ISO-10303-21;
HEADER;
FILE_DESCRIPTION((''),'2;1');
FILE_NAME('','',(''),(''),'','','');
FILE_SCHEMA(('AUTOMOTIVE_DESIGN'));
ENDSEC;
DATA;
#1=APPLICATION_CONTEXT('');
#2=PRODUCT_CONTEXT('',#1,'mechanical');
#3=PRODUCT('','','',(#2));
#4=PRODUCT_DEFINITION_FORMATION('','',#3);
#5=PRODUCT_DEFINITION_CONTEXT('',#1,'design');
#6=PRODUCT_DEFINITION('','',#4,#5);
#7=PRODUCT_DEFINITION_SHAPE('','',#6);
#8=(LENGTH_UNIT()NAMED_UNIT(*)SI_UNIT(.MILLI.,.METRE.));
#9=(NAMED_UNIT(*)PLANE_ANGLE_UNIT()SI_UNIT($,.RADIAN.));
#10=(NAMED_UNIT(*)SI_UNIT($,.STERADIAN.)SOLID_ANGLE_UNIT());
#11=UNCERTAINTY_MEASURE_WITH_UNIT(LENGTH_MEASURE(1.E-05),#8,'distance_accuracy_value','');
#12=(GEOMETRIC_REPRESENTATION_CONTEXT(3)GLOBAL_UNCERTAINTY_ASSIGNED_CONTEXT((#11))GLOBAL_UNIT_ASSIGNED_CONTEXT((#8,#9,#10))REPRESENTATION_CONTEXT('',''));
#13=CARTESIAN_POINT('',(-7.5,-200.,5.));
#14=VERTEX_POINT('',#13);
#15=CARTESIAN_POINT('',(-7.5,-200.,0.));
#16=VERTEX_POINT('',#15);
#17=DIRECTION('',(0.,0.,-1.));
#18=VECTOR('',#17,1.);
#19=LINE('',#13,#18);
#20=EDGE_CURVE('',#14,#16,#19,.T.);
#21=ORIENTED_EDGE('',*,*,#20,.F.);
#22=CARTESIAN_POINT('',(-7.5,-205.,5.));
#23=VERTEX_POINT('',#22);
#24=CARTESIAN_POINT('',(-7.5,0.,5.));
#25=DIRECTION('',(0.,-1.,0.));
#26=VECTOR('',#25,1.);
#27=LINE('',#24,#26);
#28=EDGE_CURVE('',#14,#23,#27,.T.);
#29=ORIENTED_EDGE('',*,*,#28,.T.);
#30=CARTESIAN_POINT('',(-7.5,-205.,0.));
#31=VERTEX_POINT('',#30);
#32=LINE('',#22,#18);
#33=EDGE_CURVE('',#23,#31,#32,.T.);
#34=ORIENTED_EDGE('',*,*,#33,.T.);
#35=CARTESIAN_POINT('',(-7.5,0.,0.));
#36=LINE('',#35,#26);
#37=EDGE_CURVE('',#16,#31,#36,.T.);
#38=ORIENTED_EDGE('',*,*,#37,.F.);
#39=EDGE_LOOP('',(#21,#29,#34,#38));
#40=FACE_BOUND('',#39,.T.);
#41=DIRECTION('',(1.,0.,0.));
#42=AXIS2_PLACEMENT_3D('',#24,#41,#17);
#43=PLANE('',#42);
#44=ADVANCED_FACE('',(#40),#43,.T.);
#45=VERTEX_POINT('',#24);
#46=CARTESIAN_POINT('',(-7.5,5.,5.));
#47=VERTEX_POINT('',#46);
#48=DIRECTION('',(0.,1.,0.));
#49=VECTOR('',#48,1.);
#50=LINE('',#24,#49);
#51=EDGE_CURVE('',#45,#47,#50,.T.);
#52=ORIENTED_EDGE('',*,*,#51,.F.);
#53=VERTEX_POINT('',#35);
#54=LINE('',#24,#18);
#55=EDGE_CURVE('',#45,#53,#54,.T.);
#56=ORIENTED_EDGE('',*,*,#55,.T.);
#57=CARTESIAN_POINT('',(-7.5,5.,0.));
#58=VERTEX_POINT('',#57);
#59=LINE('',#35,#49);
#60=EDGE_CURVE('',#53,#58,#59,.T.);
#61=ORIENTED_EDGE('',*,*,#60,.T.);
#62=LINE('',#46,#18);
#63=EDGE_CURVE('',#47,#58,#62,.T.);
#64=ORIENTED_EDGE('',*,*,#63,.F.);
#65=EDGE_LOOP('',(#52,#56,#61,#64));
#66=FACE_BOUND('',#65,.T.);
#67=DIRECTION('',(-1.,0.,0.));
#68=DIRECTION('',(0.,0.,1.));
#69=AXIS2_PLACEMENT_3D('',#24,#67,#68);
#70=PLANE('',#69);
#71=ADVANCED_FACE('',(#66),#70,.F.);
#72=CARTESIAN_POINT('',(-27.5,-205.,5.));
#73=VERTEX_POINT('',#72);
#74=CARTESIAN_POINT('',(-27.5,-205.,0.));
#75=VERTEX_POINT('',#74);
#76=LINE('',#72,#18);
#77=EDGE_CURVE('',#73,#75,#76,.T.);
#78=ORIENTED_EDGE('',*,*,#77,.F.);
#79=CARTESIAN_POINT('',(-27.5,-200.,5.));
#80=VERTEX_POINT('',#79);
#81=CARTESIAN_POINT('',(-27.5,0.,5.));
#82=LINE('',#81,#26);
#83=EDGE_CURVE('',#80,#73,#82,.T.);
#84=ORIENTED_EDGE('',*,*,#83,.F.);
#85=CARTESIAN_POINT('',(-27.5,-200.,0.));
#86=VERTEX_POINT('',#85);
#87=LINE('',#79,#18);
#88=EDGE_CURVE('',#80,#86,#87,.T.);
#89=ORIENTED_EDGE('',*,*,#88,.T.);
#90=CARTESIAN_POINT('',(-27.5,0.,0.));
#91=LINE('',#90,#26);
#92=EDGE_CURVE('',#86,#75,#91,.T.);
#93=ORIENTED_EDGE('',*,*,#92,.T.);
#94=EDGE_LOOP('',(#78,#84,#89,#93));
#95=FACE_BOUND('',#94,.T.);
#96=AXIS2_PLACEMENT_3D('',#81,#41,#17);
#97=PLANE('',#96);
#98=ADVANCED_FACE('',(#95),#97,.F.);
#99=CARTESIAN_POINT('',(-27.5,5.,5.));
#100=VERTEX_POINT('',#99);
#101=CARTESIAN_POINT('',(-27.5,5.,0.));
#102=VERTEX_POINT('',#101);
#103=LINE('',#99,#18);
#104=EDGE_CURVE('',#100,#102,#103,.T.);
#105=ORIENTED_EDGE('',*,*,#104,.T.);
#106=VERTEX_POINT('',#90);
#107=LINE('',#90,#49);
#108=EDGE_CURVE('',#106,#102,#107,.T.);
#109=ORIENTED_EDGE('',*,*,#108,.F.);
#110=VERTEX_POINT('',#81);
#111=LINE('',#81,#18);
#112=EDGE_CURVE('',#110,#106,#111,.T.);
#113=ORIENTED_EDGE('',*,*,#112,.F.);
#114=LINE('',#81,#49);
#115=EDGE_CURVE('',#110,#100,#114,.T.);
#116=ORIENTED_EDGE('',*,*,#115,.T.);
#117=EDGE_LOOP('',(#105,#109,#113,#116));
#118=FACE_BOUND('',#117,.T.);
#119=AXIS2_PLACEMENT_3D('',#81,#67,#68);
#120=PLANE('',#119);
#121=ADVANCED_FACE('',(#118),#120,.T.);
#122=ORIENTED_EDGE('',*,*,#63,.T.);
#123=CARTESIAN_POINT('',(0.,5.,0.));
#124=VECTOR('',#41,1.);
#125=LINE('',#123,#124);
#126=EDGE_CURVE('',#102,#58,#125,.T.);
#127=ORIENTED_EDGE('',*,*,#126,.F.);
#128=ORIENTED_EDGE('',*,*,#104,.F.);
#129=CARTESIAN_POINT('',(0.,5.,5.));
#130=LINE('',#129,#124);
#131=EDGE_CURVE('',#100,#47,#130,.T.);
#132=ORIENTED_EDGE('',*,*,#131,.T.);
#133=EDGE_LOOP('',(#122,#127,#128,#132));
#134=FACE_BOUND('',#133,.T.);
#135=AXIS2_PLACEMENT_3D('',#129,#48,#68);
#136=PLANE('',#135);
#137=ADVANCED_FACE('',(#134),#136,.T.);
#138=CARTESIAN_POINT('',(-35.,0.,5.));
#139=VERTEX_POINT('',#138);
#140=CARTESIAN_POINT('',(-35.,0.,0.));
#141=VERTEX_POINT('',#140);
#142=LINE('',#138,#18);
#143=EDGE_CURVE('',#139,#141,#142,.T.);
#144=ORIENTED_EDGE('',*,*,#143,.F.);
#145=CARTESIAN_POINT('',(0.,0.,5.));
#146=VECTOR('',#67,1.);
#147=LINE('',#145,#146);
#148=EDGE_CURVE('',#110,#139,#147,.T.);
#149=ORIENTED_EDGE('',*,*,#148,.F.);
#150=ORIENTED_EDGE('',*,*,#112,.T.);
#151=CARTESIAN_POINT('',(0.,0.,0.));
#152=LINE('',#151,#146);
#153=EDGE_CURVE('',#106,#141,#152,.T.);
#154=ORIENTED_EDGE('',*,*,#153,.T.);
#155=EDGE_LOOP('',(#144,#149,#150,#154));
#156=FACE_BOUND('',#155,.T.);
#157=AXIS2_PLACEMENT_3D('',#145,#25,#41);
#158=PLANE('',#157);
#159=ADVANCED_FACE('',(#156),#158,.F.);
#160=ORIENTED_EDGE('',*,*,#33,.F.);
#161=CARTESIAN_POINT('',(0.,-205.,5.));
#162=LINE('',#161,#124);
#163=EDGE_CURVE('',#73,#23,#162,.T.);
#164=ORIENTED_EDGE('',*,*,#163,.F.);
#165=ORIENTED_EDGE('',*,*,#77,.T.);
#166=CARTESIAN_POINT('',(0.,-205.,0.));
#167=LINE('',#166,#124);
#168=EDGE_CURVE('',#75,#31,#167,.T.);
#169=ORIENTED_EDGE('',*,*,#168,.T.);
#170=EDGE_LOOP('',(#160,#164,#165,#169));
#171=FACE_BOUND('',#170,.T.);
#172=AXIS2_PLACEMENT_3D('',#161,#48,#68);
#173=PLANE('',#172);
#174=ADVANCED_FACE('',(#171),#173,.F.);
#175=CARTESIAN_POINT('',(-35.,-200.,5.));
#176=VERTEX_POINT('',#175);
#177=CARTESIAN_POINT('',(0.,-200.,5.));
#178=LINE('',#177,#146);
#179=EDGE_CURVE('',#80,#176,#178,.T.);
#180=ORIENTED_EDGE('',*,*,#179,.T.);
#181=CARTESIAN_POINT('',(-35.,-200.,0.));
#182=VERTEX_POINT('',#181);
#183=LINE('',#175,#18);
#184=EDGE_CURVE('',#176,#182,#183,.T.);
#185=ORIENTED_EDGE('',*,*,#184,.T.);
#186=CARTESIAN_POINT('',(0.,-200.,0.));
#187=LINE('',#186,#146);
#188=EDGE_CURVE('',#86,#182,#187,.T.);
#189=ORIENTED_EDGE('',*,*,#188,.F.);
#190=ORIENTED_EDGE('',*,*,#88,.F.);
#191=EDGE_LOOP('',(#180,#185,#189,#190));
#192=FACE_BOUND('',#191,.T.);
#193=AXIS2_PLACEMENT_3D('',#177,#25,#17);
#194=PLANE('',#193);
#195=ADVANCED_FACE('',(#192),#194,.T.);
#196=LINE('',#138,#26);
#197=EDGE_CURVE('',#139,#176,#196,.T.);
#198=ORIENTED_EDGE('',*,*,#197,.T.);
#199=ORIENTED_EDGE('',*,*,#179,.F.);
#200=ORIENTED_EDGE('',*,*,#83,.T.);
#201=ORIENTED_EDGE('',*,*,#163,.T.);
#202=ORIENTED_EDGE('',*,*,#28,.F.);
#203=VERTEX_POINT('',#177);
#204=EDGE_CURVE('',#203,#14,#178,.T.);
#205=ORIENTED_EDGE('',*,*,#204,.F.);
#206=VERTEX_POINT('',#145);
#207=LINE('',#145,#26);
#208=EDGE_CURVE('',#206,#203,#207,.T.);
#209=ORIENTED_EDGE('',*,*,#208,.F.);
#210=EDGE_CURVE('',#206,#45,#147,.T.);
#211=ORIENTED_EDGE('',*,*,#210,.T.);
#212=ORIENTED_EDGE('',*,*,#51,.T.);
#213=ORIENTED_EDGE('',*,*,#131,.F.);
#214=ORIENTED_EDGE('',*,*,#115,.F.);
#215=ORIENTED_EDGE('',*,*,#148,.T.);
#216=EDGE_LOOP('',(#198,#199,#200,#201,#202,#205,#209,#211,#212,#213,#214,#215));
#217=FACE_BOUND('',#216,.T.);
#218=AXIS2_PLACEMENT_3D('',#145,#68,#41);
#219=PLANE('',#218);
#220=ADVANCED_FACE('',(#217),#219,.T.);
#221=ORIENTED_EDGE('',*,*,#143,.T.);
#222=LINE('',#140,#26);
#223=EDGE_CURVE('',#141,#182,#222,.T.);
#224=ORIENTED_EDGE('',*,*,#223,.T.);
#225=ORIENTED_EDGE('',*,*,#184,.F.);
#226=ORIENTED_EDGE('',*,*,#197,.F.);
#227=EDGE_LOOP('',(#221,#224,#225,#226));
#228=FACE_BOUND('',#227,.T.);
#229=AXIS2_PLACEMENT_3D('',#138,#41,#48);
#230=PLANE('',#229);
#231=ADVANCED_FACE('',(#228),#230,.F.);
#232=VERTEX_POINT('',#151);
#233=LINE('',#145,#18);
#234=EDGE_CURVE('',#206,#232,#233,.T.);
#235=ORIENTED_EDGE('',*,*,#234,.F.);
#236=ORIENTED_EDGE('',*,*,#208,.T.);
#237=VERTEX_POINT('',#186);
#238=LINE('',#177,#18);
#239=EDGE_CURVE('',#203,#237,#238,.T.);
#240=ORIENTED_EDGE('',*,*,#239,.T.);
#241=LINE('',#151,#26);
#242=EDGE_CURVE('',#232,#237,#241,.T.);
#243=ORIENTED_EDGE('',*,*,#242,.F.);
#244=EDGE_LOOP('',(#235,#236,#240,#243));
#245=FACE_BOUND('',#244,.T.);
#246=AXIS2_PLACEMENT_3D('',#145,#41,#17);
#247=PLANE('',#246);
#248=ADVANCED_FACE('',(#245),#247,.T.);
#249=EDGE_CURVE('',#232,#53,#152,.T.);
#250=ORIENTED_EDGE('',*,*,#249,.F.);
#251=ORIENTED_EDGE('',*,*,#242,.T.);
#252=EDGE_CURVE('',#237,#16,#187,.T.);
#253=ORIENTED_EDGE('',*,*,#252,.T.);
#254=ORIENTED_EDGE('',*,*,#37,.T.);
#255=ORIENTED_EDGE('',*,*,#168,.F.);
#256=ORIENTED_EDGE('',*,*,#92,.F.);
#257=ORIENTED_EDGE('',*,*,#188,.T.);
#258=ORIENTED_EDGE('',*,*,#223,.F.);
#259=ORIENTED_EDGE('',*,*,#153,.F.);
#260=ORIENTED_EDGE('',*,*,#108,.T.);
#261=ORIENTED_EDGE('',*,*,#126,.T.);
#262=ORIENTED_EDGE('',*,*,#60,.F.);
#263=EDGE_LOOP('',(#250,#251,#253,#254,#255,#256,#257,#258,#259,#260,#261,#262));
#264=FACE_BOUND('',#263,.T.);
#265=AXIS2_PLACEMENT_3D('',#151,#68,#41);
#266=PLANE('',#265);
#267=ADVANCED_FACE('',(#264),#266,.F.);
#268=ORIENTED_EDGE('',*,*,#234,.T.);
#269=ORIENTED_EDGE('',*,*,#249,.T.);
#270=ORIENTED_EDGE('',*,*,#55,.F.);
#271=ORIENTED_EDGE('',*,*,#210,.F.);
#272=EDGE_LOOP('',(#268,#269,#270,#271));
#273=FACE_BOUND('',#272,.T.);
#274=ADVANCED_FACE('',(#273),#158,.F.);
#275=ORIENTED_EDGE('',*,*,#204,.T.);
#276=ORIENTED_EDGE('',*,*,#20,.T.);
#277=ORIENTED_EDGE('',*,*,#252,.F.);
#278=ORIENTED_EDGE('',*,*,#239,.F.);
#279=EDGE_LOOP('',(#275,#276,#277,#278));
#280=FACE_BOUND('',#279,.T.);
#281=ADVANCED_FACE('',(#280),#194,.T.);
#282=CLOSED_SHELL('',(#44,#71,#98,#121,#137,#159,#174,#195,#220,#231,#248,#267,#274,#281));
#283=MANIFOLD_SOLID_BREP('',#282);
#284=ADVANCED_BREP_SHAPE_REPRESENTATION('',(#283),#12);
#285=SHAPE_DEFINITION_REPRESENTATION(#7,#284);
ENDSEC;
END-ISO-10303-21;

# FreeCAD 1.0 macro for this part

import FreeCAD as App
import Part
import Sketcher

V = App.Vector
Q = App.Units.Quantity


def add_polygon(sketch, points):
    """Adds a closed chain of lines whose ends are joined by coincident constraints."""
    first, n = sketch.GeometryCount, len(points)
    for a, b in zip(points, points[1:] + points[:1]):
        sketch.addGeometry(Part.LineSegment(App.Vector(*a, 0), App.Vector(*b, 0)), False)
    for i in range(n):
        sketch.addConstraint(Sketcher.Constraint("Coincident", first + i, 2, first + (i + 1) % n, 1))

doc = App.newDocument("Part")
body = doc.addObject("PartDesign::Body", "Body")

sketch1 = body.newObject("Sketcher::SketchObject", "Sketch")
sketch1.AttachmentSupport = (doc.getObject("XY_Plane"), [""])
sketch1.MapMode = "FlatFace"
add_polygon(sketch1, [(-35, 0), (-35, -200), (-27.5, -200), (-27.5, -205), (-7.5, -205), (-7.5, -200), (0, -200), (0, 0), (-7.5, 0), (-7.5, 5), (-27.5, 5), (-27.5, 0)])
sketch1.addConstraint([
    Sketcher.Constraint("Vertical", 0),
    Sketcher.Constraint("Horizontal", 1),
    Sketcher.Constraint("Vertical", 2),
    Sketcher.Constraint("Horizontal", 3),
    Sketcher.Constraint("Vertical", 4),
    Sketcher.Constraint("Horizontal", 5),
    Sketcher.Constraint("Vertical", 6),
    Sketcher.Constraint("Horizontal", 7),
    Sketcher.Constraint("Vertical", 8),
    Sketcher.Constraint("Horizontal", 9),
    Sketcher.Constraint("Vertical", 10),
    Sketcher.Constraint("Horizontal", 11),
    Sketcher.Constraint("Coincident", 6, 2, -1, 1),
    Sketcher.Constraint("PointOnObject", 10, 2, -1),
    Sketcher.Constraint("Horizontal", 1, 2, 4, 2),
    Sketcher.Constraint("Vertical", 4, 2, 7, 2),
    Sketcher.Constraint("Vertical", 2, 2, 9, 2),
    Sketcher.Constraint("Equal", 1, 5),
    Sketcher.Constraint("Equal", 4, 8),
    Sketcher.Constraint("DistanceX", 3, 1, 3, 2, Q("20 mm")),
    Sketcher.Constraint("DistanceY", 0, 2, 0, 1, Q("200 mm")),
    Sketcher.Constraint("DistanceY", 2, 2, 2, 1, Q("5 mm")),
    Sketcher.Constraint("DistanceX", 1, 1, 1, 2, Q("7.5 mm")),
])
pad1 = body.newObject("PartDesign::Pad", "Pad")
pad1.Profile = sketch1
pad1.Length = 5

doc.recompute()
